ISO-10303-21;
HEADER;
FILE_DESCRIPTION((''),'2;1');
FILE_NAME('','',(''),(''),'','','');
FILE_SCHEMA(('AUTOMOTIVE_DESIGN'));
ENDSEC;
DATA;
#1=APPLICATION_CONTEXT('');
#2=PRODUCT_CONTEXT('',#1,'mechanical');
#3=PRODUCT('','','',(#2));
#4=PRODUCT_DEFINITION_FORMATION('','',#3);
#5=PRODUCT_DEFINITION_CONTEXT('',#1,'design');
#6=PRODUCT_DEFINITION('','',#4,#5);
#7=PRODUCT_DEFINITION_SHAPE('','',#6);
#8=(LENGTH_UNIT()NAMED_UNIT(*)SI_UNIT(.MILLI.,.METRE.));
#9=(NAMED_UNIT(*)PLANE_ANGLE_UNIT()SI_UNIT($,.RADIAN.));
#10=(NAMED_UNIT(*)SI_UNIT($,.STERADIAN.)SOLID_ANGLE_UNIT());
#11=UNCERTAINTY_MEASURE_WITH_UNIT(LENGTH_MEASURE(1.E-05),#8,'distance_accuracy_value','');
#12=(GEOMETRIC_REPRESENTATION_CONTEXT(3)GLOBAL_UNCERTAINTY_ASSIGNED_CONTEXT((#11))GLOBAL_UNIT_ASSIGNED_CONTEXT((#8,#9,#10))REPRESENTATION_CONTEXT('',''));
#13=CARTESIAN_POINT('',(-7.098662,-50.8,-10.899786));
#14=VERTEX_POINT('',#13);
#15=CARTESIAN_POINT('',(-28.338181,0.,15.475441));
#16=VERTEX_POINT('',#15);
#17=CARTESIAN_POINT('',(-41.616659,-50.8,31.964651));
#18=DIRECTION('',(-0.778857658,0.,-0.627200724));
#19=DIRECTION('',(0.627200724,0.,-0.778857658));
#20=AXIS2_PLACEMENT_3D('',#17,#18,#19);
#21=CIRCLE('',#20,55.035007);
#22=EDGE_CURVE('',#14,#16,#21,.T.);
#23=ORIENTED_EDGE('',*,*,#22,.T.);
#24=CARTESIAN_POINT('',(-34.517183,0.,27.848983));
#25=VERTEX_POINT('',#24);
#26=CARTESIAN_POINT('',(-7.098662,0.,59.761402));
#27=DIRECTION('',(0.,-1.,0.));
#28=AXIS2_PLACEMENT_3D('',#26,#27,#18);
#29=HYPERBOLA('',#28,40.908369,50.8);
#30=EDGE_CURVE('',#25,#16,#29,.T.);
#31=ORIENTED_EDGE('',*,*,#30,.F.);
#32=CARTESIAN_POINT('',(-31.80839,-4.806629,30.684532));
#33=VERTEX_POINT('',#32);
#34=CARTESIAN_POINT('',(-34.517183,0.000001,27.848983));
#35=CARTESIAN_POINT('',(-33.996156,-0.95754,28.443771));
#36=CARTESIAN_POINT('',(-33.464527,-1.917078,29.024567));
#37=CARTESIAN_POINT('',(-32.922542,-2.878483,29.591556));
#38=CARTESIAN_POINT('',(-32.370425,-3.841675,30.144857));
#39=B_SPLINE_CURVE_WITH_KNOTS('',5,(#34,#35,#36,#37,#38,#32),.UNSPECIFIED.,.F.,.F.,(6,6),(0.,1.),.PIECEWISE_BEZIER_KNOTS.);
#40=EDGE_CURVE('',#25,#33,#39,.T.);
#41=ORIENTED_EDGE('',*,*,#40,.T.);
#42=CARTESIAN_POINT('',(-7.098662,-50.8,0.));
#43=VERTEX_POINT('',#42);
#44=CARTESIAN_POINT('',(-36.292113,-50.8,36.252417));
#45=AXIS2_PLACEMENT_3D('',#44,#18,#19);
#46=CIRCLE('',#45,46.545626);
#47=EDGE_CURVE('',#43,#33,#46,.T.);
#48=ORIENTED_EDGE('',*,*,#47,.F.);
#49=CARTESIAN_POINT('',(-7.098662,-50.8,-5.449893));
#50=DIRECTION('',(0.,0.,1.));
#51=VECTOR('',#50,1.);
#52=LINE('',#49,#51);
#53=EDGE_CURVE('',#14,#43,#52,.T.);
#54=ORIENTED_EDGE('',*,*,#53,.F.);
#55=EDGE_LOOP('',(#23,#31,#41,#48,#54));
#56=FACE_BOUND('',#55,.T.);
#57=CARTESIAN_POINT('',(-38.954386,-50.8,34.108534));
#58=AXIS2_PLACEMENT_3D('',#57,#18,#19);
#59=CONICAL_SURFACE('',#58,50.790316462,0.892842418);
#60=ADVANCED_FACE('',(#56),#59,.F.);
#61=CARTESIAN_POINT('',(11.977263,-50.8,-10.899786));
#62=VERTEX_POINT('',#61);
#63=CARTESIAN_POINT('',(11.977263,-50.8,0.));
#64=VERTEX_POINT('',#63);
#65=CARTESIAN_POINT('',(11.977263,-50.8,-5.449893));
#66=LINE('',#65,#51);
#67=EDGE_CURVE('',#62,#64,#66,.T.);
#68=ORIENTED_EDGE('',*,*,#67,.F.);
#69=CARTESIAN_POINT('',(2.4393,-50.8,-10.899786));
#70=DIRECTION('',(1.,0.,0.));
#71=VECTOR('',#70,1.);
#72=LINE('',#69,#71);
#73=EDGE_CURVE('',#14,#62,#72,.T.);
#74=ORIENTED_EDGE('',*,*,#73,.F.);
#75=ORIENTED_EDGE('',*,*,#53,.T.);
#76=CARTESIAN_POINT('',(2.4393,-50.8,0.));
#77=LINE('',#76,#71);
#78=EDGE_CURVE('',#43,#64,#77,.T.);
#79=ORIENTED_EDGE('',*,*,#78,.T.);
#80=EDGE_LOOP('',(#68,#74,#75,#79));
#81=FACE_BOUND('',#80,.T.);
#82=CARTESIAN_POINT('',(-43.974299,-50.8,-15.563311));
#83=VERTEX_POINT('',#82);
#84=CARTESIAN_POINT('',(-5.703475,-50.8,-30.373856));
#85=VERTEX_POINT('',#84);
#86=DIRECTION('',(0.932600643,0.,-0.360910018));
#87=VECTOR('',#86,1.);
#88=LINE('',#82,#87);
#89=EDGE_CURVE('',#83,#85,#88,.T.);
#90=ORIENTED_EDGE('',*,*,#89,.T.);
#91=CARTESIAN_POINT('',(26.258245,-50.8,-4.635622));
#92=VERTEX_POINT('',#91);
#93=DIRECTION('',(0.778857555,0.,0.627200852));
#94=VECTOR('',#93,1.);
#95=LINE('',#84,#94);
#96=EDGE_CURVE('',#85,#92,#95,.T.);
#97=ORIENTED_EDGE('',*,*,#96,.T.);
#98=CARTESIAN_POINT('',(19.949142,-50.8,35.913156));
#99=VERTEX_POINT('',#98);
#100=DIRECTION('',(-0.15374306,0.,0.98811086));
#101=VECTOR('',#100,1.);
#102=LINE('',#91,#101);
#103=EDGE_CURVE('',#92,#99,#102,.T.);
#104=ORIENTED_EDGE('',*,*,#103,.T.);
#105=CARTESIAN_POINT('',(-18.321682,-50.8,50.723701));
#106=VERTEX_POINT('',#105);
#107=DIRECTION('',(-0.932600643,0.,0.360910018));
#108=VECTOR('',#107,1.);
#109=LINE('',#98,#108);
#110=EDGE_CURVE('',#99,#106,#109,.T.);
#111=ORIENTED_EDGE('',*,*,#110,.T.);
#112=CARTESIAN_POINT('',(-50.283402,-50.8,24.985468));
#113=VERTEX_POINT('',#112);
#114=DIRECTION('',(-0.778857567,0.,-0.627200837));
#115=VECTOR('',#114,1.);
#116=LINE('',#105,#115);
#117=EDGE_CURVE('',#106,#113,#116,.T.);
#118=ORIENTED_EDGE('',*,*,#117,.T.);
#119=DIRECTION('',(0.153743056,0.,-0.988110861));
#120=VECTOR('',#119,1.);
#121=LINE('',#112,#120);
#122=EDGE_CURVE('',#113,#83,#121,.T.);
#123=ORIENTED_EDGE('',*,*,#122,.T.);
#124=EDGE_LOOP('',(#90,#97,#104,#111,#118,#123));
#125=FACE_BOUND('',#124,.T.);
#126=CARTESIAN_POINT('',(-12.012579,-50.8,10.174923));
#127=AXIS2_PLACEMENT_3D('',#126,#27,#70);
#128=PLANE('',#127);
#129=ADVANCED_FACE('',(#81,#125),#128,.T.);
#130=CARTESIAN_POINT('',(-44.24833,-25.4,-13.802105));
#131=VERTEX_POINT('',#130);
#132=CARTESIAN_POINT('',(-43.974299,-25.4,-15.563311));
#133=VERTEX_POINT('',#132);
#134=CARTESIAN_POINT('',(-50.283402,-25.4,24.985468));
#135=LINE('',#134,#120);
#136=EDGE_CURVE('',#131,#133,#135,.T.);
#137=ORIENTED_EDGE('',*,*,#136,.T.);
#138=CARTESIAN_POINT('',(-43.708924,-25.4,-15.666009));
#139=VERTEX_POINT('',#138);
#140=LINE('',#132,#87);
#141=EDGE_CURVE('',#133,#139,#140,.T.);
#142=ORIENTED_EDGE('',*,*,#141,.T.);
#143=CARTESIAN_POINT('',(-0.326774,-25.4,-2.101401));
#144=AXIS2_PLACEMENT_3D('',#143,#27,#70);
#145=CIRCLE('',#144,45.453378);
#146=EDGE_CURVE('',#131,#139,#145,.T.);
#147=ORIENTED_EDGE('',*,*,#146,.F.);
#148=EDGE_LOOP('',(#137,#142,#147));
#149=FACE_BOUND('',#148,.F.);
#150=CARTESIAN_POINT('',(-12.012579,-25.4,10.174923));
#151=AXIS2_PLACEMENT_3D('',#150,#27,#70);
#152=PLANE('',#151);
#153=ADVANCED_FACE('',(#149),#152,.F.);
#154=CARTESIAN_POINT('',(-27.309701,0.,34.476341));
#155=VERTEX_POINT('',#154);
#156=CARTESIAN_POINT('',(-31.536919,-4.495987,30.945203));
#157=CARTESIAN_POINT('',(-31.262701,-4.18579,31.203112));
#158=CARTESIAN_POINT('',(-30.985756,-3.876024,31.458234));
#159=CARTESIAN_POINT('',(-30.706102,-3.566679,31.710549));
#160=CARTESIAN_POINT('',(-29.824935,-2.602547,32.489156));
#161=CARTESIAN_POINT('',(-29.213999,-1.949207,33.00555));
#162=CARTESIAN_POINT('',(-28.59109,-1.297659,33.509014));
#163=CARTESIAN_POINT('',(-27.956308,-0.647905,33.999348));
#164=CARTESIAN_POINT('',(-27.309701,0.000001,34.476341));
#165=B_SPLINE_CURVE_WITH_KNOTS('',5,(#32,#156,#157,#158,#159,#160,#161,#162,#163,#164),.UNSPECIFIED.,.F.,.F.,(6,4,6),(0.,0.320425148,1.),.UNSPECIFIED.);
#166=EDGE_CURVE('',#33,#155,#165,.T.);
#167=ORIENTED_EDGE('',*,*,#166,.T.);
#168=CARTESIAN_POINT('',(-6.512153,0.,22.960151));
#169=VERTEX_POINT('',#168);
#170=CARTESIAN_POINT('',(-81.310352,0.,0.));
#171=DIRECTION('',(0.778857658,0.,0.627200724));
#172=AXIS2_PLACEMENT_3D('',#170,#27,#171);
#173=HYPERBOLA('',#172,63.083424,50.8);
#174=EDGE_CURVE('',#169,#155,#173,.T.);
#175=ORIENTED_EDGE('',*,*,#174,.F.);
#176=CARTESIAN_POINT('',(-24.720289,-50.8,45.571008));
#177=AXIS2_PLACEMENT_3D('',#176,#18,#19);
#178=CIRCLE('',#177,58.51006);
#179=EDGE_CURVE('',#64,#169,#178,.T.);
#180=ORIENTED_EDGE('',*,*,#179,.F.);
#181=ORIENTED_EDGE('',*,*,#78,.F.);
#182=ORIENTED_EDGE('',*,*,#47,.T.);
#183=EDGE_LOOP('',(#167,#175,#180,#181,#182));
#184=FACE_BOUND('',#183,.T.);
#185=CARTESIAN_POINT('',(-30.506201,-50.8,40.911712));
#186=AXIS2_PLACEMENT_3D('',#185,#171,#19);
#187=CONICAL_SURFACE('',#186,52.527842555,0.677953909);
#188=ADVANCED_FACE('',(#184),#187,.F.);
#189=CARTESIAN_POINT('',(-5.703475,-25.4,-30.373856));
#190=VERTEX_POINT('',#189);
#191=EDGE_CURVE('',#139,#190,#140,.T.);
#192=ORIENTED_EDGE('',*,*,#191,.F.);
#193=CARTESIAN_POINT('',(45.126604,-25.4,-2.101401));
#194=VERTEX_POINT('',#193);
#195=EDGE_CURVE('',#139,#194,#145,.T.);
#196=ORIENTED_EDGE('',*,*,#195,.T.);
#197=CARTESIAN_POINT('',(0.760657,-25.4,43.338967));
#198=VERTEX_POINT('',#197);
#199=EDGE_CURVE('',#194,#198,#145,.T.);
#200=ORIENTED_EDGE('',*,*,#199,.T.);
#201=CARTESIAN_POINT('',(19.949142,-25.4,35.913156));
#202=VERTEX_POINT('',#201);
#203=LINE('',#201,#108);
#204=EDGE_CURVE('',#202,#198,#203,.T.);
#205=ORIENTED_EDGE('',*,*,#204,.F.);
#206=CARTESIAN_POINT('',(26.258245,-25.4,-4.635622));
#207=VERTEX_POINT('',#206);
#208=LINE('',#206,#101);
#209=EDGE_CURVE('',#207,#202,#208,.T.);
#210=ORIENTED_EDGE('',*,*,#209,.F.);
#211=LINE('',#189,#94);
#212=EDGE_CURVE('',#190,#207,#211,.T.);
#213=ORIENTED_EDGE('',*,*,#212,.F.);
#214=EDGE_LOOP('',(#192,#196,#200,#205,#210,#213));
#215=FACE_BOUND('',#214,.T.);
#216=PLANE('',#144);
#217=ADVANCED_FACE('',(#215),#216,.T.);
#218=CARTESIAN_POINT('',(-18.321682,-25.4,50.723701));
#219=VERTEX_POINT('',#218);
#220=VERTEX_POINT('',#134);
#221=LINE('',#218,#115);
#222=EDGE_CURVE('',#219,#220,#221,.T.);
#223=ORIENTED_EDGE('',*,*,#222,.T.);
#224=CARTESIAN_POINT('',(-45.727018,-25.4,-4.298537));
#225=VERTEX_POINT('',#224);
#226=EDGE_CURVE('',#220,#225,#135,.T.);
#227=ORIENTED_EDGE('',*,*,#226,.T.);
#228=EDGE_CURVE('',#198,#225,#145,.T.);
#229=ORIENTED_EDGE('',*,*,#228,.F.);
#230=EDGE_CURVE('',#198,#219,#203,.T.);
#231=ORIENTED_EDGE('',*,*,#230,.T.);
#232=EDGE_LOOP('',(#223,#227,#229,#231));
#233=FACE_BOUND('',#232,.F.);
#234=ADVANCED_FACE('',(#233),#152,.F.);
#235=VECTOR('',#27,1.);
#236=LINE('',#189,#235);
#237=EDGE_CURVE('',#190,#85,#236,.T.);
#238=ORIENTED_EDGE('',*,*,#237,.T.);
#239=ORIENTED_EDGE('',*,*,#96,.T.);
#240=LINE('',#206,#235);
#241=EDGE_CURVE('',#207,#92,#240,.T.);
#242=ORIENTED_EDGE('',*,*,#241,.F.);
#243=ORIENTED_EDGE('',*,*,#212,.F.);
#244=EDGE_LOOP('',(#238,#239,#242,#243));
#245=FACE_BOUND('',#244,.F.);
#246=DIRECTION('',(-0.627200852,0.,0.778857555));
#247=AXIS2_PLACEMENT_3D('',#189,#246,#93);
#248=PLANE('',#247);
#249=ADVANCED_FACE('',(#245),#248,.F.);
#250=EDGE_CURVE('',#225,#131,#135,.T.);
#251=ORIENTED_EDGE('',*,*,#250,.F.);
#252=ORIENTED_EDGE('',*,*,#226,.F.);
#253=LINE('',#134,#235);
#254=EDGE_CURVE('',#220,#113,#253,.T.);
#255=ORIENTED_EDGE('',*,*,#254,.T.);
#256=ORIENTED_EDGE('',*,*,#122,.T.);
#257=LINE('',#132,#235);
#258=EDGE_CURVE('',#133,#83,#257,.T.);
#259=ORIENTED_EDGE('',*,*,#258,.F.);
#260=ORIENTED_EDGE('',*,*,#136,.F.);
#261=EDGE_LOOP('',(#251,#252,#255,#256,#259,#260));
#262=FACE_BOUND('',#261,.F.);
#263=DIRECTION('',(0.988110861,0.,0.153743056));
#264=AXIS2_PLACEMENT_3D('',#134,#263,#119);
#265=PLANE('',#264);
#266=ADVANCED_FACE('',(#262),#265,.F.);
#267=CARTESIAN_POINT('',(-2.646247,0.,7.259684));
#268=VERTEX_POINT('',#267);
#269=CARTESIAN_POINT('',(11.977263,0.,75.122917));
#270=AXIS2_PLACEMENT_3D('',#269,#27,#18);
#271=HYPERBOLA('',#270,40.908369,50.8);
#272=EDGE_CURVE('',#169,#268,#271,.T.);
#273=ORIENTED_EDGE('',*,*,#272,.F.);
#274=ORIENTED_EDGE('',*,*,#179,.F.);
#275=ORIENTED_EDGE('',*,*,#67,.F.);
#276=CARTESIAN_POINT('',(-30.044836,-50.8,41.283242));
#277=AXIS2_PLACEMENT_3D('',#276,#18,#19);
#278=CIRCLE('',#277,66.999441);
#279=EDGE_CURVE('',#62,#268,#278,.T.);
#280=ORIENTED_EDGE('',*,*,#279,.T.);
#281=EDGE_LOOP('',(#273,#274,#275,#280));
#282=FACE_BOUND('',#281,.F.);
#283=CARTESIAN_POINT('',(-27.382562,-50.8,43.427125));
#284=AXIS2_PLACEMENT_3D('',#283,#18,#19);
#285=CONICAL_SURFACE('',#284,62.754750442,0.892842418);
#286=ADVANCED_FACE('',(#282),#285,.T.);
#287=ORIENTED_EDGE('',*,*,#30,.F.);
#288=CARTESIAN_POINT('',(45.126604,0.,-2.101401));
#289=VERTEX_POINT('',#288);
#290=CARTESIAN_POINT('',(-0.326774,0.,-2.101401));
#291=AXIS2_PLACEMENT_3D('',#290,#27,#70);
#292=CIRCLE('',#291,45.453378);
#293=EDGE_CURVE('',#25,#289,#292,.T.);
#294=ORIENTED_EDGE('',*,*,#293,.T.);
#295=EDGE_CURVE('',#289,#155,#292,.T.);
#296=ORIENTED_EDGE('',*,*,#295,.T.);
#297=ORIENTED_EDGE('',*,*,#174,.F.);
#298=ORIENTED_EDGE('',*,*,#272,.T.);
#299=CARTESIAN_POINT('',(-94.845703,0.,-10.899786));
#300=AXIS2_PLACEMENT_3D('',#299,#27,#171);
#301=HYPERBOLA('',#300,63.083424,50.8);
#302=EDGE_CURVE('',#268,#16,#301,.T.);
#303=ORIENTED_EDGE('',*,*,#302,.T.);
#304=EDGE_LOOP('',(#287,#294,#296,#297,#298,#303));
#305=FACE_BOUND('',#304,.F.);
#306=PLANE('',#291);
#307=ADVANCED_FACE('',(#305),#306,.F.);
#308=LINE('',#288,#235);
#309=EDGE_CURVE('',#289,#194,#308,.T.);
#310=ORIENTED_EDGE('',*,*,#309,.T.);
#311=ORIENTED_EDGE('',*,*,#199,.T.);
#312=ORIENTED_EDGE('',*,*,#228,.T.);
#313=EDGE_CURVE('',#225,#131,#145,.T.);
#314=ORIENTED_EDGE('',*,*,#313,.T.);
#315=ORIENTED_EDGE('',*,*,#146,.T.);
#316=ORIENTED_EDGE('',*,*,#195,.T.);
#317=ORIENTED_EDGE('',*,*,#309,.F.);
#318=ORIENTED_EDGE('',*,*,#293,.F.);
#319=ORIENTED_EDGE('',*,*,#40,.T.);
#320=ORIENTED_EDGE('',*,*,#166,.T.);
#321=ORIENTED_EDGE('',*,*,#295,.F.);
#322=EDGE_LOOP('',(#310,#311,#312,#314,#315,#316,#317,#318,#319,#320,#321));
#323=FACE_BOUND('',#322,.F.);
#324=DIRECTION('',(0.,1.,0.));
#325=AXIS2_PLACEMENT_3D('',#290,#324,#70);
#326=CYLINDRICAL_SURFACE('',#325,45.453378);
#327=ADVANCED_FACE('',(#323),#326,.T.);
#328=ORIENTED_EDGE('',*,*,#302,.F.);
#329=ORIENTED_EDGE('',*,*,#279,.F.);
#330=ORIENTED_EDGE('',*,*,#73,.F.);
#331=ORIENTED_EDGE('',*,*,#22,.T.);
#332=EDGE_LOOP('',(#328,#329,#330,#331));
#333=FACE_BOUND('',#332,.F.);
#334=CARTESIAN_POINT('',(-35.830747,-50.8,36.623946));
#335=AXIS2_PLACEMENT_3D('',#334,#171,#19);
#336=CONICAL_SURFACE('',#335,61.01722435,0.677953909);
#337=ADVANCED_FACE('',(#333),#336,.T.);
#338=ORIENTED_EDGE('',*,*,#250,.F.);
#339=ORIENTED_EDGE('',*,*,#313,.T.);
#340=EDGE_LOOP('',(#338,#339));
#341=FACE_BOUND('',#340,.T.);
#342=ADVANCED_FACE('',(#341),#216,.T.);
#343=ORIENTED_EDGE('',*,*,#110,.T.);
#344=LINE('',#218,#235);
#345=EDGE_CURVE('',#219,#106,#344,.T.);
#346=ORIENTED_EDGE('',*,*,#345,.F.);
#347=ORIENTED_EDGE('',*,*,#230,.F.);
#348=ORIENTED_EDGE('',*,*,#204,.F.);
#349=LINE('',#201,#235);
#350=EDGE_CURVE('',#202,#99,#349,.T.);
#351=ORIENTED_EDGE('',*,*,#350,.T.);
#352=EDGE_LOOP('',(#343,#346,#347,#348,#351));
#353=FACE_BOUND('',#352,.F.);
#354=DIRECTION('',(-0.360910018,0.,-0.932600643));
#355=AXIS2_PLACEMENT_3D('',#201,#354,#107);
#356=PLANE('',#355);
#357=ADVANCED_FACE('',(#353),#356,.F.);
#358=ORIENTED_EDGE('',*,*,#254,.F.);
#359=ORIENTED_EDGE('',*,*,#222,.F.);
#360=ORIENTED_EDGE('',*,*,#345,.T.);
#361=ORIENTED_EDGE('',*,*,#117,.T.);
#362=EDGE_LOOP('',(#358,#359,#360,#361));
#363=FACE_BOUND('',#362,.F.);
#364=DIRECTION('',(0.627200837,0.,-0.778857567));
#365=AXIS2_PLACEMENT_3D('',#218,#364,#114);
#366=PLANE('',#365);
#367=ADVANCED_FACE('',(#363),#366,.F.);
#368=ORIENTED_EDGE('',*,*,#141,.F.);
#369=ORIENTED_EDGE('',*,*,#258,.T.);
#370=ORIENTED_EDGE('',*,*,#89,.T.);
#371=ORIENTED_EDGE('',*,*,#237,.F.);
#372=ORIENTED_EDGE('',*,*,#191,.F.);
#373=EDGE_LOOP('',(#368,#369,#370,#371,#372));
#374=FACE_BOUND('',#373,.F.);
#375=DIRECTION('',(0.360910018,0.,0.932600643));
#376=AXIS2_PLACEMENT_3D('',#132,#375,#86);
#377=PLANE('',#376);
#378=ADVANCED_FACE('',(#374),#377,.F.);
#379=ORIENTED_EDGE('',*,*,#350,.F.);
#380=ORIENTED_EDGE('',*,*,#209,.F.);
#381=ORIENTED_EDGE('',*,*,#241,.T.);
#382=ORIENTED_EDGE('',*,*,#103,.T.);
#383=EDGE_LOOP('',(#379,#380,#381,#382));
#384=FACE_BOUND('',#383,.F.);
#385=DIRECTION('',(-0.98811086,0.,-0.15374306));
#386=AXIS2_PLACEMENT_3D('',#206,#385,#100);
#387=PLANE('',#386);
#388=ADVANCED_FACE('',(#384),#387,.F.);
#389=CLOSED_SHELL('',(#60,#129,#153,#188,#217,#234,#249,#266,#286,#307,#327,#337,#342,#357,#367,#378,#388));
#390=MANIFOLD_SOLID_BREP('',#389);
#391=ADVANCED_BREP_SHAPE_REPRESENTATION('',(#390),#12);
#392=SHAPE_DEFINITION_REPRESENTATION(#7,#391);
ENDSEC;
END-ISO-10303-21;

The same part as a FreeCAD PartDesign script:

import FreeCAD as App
import Part
import Sketcher

V = App.Vector
Q = App.Units.Quantity

doc = App.newDocument("Part")
body = doc.addObject("PartDesign::Body", "Body")

sketch1 = body.newObject("Sketcher::SketchObject", "Sketch")
sketch1.AttachmentSupport = (doc.getObject("XZ_Plane"), [""])
sketch1.MapMode = "FlatFace"
sketch1.addGeometry(Part.Circle(V(-0.326774, -2.101401, 0), V(0, 0, 1), 45.453378), False)
sketch1.addConstraint(Sketcher.Constraint("Diameter", 0, Q("90.906756 mm")))
sketch1.addConstraint(Sketcher.Constraint("DistanceY", 0, 3, -1, 1, Q("2.101401 mm")))
sketch1.addConstraint(Sketcher.Constraint("DistanceX", 0, 3, -1, 1, Q("0.326774 mm")))
pad1 = body.newObject("PartDesign::Pad", "Pad")
pad1.Profile = sketch1
pad1.Length = Q("1 in")

sketch2 = body.newObject("Sketcher::SketchObject", "Sketch001")
sketch2.AttachmentSupport = (doc.getObject("XZ_Plane"), [""])
sketch2.MapMode = "FlatFace"
sketch2.AttachmentOffset = App.Placement(V(0, 0, 1 * 25.4), App.Rotation())
sketch2.addGeometry(Part.LineSegment(V(26.258245, -4.635622, 0), V(19.949142, 35.913156, 0)), False)
sketch2.addGeometry(Part.LineSegment(V(19.949142, 35.913156, 0), V(-18.321682, 50.723701, 0)), False)
sketch2.addGeometry(Part.LineSegment(V(-18.321682, 50.723701, 0), V(-50.283402, 24.985468, 0)), False)
sketch2.addGeometry(Part.LineSegment(V(-50.283402, 24.985468, 0), V(-43.974299, -15.563311, 0)), False)
sketch2.addGeometry(Part.LineSegment(V(-43.974299, -15.563311, 0), V(-5.703475, -30.373856, 0)), False)
sketch2.addGeometry(Part.LineSegment(V(-5.703475, -30.373856, 0), V(26.258245, -4.635622, 0)), False)
sketch2.addConstraint(Sketcher.Constraint("Coincident", 0, 2, 1, 1))
sketch2.addConstraint(Sketcher.Constraint("Coincident", 1, 2, 2, 1))
sketch2.addConstraint(Sketcher.Constraint("Coincident", 2, 2, 3, 1))
sketch2.addConstraint(Sketcher.Constraint("Coincident", 3, 2, 4, 1))
sketch2.addConstraint(Sketcher.Constraint("Coincident", 4, 2, 5, 1))
sketch2.addConstraint(Sketcher.Constraint("Coincident", 5, 2, 0, 1))
sketch2.addConstraint(Sketcher.Constraint("Parallel", 0, 3))
sketch2.addConstraint(Sketcher.Constraint("Parallel", 1, 4))
sketch2.addConstraint(Sketcher.Constraint("Parallel", 2, 5))
sketch2.addConstraint(Sketcher.Constraint("Equal", 0, 1))
sketch2.addConstraint(Sketcher.Constraint("Equal", 1, 2))
sketch2.addConstraint(Sketcher.Constraint("Equal", 2, 3))
sketch2.addConstraint(Sketcher.Constraint("DistanceY", -1, 1, 1, 2, Q("50.723701 mm")))
sketch2.addConstraint(Sketcher.Constraint("DistanceX", 3, 2, -1, 1, Q("43.974299 mm")))
sketch2.addConstraint(Sketcher.Constraint("Distance", 0, Q("41.036669 mm")))
sketch2.addConstraint(Sketcher.Constraint("DistanceX", -1, 1, 0, 2, Q("19.949142 mm")))
sketch2.addConstraint(Sketcher.Constraint("DistanceX", 1, 2, -1, 1, Q("18.321682 mm")))
sketch2.addConstraint(Sketcher.Constraint("DistanceY", -1, 1, 2, 2, Q("24.985468 mm")))
pad2 = body.newObject("PartDesign::Pad", "Pad001")
pad2.Profile = sketch2
pad2.Length = Q("1 in")

sketch3 = body.newObject("Sketcher::SketchObject", "Sketch002")
sketch3.AttachmentSupport = (doc.getObject("XZ_Plane"), [""])
sketch3.MapMode = "FlatFace"
sketch3.AttachmentOffset = App.Placement(V(0, 0, 2 * 25.4), App.Rotation())
sketch3.addGeometry(Part.LineSegment(V(-7.098662, 0, 0), V(-7.098662, -10.899786, 0)), False)
sketch3.addGeometry(Part.LineSegment(V(-7.098662, -10.899786, 0), V(11.977263, -10.899786, 0)), False)
sketch3.addGeometry(Part.LineSegment(V(11.977263, -10.899786, 0), V(11.977263, 0, 0)), False)
sketch3.addGeometry(Part.LineSegment(V(11.977263, 0, 0), V(-7.098662, 0, 0)), False)
sketch3.addGeometry(Part.LineSegment(V(-24.720289, 45.571008, 0), V(-41.616659, 31.964651, 0)), True)
sketch3.addConstraint(Sketcher.Constraint("Coincident", 0, 2, 1, 1))
sketch3.addConstraint(Sketcher.Constraint("Coincident", 1, 2, 2, 1))
sketch3.addConstraint(Sketcher.Constraint("Coincident", 2, 2, 3, 1))
sketch3.addConstraint(Sketcher.Constraint("Coincident", 3, 2, 0, 1))
sketch3.addConstraint(Sketcher.Constraint("Vertical", 0))
sketch3.addConstraint(Sketcher.Constraint("Horizontal", 1))
sketch3.addConstraint(Sketcher.Constraint("Vertical", 2))
sketch3.addConstraint(Sketcher.Constraint("Horizontal", 3))
sketch3.addConstraint(Sketcher.Constraint("PointOnObject", 2, 2, -1))
sketch3.addConstraint(Sketcher.Constraint("DistanceX", 1, 1, 1, 2, Q("19.075925 mm")))
sketch3.addConstraint(Sketcher.Constraint("DistanceY", 0, 2, 0, 1, Q("10.899786 mm")))
sketch3.addConstraint(Sketcher.Constraint("DistanceX", 4, 1, -1, 1, Q("24.720289 mm")))
sketch3.addConstraint(Sketcher.Constraint("DistanceX", 4, 2, -1, 1, Q("41.616659 mm")))
sketch3.addConstraint(Sketcher.Constraint("DistanceY", -1, 1, 4, 2, Q("31.964651 mm")))
sketch3.addConstraint(Sketcher.Constraint("DistanceX", 4, 1, 2, 2, Q("36.697552 mm")))
sketch3.addConstraint(Sketcher.Constraint("Distance", 4, Q("21.693784 mm")))
revolution = body.newObject("PartDesign::Revolution", "Revolution")
revolution.Profile = sketch3
revolution.ReferenceAxis = (sketch3, ["Axis0"])
revolution.Angle = 360

doc.recompute()
